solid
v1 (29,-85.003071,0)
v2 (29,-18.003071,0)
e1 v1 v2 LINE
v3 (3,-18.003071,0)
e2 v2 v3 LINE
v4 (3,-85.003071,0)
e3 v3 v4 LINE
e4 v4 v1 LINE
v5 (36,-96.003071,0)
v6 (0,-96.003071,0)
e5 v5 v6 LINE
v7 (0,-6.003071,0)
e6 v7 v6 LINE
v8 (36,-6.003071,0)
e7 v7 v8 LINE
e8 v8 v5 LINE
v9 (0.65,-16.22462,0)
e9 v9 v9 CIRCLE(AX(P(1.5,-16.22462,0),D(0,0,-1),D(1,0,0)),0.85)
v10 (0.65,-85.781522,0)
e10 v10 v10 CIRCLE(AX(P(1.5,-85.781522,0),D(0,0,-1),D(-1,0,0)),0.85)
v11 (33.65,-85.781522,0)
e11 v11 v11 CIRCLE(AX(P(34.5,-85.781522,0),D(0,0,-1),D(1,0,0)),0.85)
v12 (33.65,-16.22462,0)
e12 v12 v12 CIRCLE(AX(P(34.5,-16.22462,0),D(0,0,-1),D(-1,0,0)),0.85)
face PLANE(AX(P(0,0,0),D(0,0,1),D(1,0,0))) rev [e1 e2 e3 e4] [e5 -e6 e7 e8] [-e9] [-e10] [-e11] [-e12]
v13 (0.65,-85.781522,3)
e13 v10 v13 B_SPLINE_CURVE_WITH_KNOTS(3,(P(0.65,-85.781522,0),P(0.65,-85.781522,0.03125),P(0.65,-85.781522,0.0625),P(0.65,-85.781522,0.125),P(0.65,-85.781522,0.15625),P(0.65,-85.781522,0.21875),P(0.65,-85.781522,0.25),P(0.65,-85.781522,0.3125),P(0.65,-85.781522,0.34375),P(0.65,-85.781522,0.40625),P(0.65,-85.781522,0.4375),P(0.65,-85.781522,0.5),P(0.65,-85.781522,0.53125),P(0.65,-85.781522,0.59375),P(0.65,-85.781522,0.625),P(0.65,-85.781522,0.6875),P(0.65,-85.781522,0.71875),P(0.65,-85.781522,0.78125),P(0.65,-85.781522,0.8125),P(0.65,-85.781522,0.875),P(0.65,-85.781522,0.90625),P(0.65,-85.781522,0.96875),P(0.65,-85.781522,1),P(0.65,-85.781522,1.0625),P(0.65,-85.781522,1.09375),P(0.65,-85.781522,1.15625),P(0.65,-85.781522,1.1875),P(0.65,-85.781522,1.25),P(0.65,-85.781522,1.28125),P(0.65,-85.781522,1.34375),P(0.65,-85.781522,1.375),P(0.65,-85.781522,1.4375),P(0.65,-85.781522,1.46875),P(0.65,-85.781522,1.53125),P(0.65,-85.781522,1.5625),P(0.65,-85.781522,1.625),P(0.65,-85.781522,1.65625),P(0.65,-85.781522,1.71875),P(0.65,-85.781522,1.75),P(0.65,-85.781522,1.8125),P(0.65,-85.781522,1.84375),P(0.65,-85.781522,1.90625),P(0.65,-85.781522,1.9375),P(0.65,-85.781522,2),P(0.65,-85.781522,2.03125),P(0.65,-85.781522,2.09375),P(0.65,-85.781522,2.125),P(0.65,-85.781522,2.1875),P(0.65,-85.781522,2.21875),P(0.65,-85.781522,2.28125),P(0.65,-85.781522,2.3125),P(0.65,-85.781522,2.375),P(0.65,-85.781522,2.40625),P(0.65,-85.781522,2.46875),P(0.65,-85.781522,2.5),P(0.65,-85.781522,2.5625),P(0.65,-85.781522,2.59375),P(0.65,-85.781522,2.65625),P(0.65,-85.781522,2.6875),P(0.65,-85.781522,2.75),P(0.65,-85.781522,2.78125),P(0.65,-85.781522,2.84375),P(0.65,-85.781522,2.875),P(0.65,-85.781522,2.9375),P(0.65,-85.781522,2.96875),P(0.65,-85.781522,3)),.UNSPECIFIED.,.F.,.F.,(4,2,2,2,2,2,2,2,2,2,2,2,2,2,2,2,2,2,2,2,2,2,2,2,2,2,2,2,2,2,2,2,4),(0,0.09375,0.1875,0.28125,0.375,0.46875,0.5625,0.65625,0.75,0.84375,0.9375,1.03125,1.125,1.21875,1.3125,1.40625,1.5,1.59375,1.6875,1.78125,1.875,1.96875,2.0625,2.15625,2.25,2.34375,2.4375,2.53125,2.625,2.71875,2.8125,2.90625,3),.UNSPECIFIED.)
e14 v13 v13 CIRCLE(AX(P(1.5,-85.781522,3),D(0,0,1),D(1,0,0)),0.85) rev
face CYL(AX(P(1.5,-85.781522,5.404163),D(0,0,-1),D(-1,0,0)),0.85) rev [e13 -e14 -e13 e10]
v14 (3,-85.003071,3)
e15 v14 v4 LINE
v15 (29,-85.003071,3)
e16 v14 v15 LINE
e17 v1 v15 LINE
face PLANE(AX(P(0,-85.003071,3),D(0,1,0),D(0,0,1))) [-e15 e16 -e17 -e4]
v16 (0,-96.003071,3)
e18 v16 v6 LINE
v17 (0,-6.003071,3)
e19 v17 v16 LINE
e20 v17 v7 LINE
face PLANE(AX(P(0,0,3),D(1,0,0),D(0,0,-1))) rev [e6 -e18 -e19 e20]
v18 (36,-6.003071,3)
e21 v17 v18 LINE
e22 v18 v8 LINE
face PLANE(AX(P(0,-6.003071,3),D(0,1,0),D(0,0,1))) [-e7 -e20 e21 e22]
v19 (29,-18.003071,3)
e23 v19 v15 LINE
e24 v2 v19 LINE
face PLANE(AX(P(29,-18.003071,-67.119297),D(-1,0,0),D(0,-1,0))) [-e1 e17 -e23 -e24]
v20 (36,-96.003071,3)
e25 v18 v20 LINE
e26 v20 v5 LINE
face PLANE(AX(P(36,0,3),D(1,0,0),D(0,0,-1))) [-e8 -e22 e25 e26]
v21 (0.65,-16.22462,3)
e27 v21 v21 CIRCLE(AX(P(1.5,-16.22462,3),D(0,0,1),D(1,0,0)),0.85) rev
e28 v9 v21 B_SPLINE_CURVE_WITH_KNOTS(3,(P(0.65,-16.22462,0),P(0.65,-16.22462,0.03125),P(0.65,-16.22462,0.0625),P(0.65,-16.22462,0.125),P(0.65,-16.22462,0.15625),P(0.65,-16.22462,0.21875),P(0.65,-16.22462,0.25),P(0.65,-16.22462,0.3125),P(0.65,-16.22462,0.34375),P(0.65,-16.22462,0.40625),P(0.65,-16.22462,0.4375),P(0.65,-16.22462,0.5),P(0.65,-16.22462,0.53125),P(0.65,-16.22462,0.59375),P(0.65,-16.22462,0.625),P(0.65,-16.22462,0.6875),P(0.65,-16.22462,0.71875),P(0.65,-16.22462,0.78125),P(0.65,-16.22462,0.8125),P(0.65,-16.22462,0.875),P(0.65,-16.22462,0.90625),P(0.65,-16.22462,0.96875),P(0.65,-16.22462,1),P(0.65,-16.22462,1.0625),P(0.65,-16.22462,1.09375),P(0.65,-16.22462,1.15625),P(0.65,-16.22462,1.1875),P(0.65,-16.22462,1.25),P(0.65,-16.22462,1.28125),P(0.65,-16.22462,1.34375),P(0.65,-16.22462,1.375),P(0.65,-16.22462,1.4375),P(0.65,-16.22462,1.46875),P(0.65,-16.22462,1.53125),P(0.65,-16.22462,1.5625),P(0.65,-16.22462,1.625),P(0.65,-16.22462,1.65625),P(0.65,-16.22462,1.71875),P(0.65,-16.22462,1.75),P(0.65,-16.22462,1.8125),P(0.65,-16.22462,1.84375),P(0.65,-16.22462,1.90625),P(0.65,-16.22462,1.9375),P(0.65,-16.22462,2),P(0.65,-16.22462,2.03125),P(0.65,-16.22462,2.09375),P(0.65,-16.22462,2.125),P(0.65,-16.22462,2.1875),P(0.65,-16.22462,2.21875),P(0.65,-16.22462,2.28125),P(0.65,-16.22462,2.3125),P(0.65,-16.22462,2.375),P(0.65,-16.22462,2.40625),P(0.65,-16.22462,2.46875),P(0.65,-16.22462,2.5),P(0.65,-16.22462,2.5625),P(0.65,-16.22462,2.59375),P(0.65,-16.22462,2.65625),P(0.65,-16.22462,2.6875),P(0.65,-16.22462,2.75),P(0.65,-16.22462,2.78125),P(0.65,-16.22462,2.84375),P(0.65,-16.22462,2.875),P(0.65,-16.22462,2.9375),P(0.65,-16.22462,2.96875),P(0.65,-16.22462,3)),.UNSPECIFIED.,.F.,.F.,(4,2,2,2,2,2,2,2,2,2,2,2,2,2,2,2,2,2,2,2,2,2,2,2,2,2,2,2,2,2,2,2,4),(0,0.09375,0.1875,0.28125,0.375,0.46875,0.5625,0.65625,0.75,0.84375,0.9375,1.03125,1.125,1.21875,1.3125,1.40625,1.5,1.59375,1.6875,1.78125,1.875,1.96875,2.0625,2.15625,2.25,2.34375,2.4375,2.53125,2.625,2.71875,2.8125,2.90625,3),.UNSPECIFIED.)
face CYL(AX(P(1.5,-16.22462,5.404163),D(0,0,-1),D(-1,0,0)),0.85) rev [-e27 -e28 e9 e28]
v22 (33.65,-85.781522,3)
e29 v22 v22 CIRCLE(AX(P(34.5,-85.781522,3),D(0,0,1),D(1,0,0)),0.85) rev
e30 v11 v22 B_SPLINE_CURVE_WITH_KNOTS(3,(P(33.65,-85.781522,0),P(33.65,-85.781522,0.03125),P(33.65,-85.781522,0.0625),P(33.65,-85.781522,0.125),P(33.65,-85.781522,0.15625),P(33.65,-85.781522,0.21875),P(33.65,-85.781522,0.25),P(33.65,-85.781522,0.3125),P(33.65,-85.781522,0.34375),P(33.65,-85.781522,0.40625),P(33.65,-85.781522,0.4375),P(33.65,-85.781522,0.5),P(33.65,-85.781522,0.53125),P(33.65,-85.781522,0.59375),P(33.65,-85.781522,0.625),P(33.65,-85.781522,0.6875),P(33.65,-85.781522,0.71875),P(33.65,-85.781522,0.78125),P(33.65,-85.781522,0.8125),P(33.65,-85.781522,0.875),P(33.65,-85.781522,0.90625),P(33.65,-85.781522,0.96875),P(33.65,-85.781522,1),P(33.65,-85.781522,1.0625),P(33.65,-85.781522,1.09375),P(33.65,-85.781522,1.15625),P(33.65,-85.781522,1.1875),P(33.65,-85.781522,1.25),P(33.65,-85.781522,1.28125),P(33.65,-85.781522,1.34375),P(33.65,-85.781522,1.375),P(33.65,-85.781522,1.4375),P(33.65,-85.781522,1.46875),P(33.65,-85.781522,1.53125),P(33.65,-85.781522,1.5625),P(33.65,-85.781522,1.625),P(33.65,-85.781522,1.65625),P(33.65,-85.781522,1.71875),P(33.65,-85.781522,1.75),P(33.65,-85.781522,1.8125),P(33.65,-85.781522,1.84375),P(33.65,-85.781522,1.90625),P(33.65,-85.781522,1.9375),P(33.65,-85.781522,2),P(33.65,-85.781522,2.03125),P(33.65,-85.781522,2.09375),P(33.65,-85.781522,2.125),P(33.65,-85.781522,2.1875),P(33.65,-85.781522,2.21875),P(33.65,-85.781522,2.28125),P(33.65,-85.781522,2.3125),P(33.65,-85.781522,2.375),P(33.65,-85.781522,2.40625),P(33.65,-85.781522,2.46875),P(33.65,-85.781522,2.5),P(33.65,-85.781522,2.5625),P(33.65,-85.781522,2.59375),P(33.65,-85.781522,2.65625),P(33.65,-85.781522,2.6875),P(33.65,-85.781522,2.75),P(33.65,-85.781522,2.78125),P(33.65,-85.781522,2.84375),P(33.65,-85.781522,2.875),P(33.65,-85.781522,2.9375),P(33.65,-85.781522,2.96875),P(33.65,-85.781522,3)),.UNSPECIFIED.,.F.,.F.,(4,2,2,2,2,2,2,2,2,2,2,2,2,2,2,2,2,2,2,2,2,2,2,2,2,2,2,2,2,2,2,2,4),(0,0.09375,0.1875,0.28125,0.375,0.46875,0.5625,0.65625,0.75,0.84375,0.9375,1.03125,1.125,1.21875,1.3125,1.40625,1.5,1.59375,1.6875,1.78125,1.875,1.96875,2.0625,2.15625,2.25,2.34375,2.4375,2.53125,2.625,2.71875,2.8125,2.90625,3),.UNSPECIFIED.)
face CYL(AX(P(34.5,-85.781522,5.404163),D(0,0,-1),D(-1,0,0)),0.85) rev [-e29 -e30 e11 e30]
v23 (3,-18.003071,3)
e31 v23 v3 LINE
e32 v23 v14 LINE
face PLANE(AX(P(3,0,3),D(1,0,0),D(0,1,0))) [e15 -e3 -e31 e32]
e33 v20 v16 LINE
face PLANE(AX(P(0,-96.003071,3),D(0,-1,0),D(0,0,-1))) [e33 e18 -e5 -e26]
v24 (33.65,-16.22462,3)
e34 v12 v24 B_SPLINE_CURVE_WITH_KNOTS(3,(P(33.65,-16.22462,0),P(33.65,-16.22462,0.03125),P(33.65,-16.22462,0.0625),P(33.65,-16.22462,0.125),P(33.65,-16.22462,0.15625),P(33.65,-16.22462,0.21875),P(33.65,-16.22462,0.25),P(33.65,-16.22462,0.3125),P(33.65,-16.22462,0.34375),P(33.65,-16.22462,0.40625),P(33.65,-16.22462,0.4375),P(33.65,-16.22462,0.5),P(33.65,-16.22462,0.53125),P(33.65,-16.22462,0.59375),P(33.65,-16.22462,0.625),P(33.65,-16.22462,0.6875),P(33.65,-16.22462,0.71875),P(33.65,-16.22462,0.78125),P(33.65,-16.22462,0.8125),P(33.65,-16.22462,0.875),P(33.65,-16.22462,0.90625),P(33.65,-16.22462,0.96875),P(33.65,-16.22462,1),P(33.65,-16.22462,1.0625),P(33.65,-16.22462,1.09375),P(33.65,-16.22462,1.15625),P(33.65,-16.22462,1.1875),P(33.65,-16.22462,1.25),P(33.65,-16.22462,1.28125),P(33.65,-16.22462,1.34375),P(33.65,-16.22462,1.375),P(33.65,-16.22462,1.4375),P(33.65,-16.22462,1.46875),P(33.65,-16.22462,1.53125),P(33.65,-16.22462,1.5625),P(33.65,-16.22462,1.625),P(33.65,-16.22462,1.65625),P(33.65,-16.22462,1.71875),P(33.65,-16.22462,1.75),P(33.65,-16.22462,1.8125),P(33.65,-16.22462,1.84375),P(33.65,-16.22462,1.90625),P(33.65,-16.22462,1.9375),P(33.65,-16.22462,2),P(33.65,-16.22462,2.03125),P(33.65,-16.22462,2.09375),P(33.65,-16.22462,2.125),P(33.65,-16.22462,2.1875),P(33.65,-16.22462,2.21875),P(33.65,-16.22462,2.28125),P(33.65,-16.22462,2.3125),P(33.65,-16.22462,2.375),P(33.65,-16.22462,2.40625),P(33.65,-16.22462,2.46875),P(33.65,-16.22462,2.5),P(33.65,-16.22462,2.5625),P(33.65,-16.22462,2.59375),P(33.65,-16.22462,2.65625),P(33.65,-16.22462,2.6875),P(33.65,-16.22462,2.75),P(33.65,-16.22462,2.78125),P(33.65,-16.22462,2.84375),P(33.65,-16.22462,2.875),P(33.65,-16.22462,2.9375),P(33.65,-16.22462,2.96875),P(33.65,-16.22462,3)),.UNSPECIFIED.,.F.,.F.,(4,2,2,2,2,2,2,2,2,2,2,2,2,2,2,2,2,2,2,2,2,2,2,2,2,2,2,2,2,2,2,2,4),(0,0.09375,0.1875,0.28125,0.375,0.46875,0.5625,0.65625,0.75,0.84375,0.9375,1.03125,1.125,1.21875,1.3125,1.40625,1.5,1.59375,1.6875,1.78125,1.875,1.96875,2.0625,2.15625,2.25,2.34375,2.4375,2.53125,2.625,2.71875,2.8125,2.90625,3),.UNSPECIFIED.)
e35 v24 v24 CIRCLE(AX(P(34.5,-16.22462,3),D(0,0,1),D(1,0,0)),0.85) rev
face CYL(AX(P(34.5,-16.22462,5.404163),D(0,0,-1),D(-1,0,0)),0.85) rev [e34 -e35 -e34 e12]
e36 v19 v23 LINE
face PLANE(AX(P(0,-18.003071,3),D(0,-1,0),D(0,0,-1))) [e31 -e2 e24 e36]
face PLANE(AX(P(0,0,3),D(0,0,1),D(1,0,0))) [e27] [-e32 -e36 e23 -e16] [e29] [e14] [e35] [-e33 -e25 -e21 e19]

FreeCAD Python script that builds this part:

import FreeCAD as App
import Part
import Sketcher
from FreeCAD import Vector
Q = App.Units.Quantity


def add_polygon(sketch, points):
    """Adds a closed chain of lines whose ends are joined by coincident constraints."""
    first, n = sketch.GeometryCount, len(points)
    for a, b in zip(points, points[1:] + points[:1]):
        sketch.addGeometry(Part.LineSegment(App.Vector(*a, 0), App.Vector(*b, 0)), False)
    for i in range(n):
        sketch.addConstraint(Sketcher.Constraint("Coincident", first + i, 2, first + (i + 1) % n, 1))

doc = App.newDocument("Part")
body = doc.addObject("PartDesign::Body", "Body")

sketch1 = body.newObject("Sketcher::SketchObject", "Sketch")
sketch1.AttachmentSupport = (doc.getObject("XY_Plane"), [""])
sketch1.MapMode = "FlatFace"
add_polygon(sketch1, [(0, -6), (0, -96), (36, -96), (36, -6)])
add_polygon(sketch1, [(33, -85), (3, -85), (3, -18), (33, -18)])
sketch1.addConstraint([
    Sketcher.Constraint("Vertical", 0),
    Sketcher.Constraint("Horizontal", 1),
    Sketcher.Constraint("Vertical", 2),
    Sketcher.Constraint("Horizontal", 3),
    Sketcher.Constraint("Horizontal", 4),
    Sketcher.Constraint("Vertical", 5),
    Sketcher.Constraint("Horizontal", 6),
    Sketcher.Constraint("Vertical", 7),
    Sketcher.Constraint("PointOnObject", 0, 2, -2),
    Sketcher.Constraint("DistanceX", 1, 1, 1, 2, Q("36 mm")),
    Sketcher.Constraint("DistanceX", 4, 2, 4, 1, Q("30 mm")),
    Sketcher.Constraint("DistanceY", 0, 2, 0, 1, Q("90 mm")),
    Sketcher.Constraint("DistanceY", 5, 1, 5, 2, Q("67 mm")),
    Sketcher.Constraint("DistanceX", -1, 1, 4, 2, Q("3 mm")),
    Sketcher.Constraint("DistanceY", 0, 2, 4, 2, Q("11 mm")),
    Sketcher.Constraint("DistanceY", 0, 2, -1, 1, Q("96.003071 mm")),
])
pad1 = body.newObject("PartDesign::Pad", "Pad")
pad1.Profile = sketch1
pad1.Length = 3

sketch2 = body.newObject("Sketcher::SketchObject", "Sketch001")
sketch2.AttachmentSupport = (doc.getObject("XY_Plane"), [""])
sketch2.MapMode = "FlatFace"
sketch2.addGeometry([
    Part.Circle(Vector(34.5, -16.2, 0), Vector(0, 0, 1), 0.8),
    Part.Circle(Vector(1.5, -16.2, 0), Vector(0, 0, 1), 0.8),
    Part.Circle(Vector(1.5, -85.8, 0), Vector(0, 0, 1), 0.8),
    Part.Circle(Vector(34.5, -85.8, 0), Vector(0, 0, 1), 0.8),
], False)
sketch2.addConstraint([
    Sketcher.Constraint("Equal", 0, 1),
    Sketcher.Constraint("Equal", 1, 2),
    Sketcher.Constraint("Equal", 2, 3),
    Sketcher.Constraint("Horizontal", 0, 3, 1, 3),
    Sketcher.Constraint("Horizontal", 2, 3, 3, 3),
    Sketcher.Constraint("Vertical", 1, 3, 2, 3),
    Sketcher.Constraint("Vertical", 0, 3, 3, 3),
    Sketcher.Constraint("Diameter", 0, Q("1.7 mm")),
    Sketcher.Constraint("DistanceX", 1, 3, 0, 3, Q("33 mm")),
    Sketcher.Constraint("DistanceX", -1, 1, 0, 3, Q("34.5 mm")),
    Sketcher.Constraint("DistanceY", 0, 3, -1, 1, Q("16.22462 mm")),
    Sketcher.Constraint("DistanceY", 2, 3, -1, 1, Q("85.781522 mm")),
])
pocket1 = body.newObject("PartDesign::Pocket", "Pocket")
pocket1.Profile = sketch2
pocket1.Length = 3
pocket1.Reversed = True

sketch3 = body.newObject("Sketcher::SketchObject", "Sketch002")
sketch3.AttachmentSupport = (doc.getObject("XY_Plane"), [""])
sketch3.MapMode = "FlatFace"
sketch3.AttachmentOffset = App.Placement(Vector(0, 0, 3), App.Rotation())
add_polygon(sketch3, [(29, -18), (29, -85), (33, -85), (33, -18)])
sketch3.addConstraint([
    Sketcher.Constraint("Vertical", 0),
    Sketcher.Constraint("Horizontal", 1),
    Sketcher.Constraint("Vertical", 2),
    Sketcher.Constraint("Horizontal", 3),
    Sketcher.Constraint("DistanceX", 1, 1, 1, 2, Q("4 mm")),
    Sketcher.Constraint("DistanceY", 0, 2, 0, 1, Q("67 mm")),
    Sketcher.Constraint("DistanceX", -1, 1, 0, 2, Q("29 mm")),
    Sketcher.Constraint("DistanceY", 0, 2, -1, 1, Q("85.003071 mm")),
])
pad2 = body.newObject("PartDesign::Pad", "Pad001")
pad2.Profile = sketch3
pad2.Length = 3
pad2.Reversed = True

doc.recompute()
